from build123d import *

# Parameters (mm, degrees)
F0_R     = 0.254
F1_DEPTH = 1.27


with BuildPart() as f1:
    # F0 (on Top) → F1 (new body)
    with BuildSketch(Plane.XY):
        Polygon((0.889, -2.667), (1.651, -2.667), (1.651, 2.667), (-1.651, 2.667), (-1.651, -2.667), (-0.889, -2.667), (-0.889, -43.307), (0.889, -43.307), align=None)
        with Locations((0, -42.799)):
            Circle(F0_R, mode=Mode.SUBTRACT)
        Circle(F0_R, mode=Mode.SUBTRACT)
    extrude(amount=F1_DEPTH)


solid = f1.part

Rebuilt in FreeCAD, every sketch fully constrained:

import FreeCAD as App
import Part
import Sketcher
from FreeCAD import Vector
Q = App.Units.Quantity

doc = App.newDocument("Part")
params = doc.addObject("Spreadsheet::Sheet", "Params")
for row, (alias, value) in enumerate([
    ("sketch1_diameter", "0.02 in"),
    ("sketch1_height", "1.6 in"),
    ("sketch1_width", "0.03 in"),
    ("sketch1_width2", "0.13 in"),
    ("sketch1_height2", "0.21 in"),
    ("pad1_length", "0.05 in"),
], start=1):
    params.set(f"A{row}", alias)
    params.set(f"B{row}", "=" + value)
    params.setAlias(f"B{row}", alias)

body = doc.addObject("PartDesign::Body", "Body")

# Sketch on XY plane
sketch1 = body.newObject("Sketcher::SketchObject", "Sketch")
sketch1.AttachmentSupport = (doc.getObject("XY_Plane"), [""])
sketch1.MapMode = "FlatFace"
sketch1.addGeometry(Part.LineSegment(Vector(0.889, -2.667, 0), Vector(1.651, -2.667, 0)), False)
sketch1.addGeometry(Part.LineSegment(Vector(1.651, -2.667, 0), Vector(1.651, 2.667, 0)), False)
sketch1.addGeometry(Part.LineSegment(Vector(1.651, 2.667, 0), Vector(-1.651, 2.667, 0)), False)
sketch1.addGeometry(Part.LineSegment(Vector(-1.651, 2.667, 0), Vector(-1.651, -2.667, 0)), False)
sketch1.addGeometry(Part.LineSegment(Vector(-1.651, -2.667, 0), Vector(-0.889, -2.667, 0)), False)
sketch1.addGeometry(Part.LineSegment(Vector(-0.889, -2.667, 0), Vector(-0.889, -43.307, 0)), False)
sketch1.addGeometry(Part.LineSegment(Vector(-0.889, -43.307, 0), Vector(0.889, -43.307, 0)), False)
sketch1.addGeometry(Part.LineSegment(Vector(0.889, -43.307, 0), Vector(0.889, -2.667, 0)), False)
sketch1.addGeometry(Part.Circle(Vector(0, -42.799, 0), Vector(0, 0, 1), 0.254), False)
sketch1.addGeometry(Part.Circle(Vector(0, 0, 0), Vector(0, 0, 1), 0.254), False)
sketch1.addConstraint(Sketcher.Constraint("Coincident", 0, 2, 1, 1))
sketch1.addConstraint(Sketcher.Constraint("Coincident", 1, 2, 2, 1))
sketch1.addConstraint(Sketcher.Constraint("Coincident", 2, 2, 3, 1))
sketch1.addConstraint(Sketcher.Constraint("Coincident", 3, 2, 4, 1))
sketch1.addConstraint(Sketcher.Constraint("Coincident", 4, 2, 5, 1))
sketch1.addConstraint(Sketcher.Constraint("Coincident", 5, 2, 6, 1))
sketch1.addConstraint(Sketcher.Constraint("Coincident", 6, 2, 7, 1))
sketch1.addConstraint(Sketcher.Constraint("Coincident", 7, 2, 0, 1))
sketch1.addConstraint(Sketcher.Constraint("Horizontal", 0))
sketch1.addConstraint(Sketcher.Constraint("Vertical", 1))
sketch1.addConstraint(Sketcher.Constraint("Horizontal", 2))
sketch1.addConstraint(Sketcher.Constraint("Vertical", 3))
sketch1.addConstraint(Sketcher.Constraint("Horizontal", 4))
sketch1.addConstraint(Sketcher.Constraint("Vertical", 5))
sketch1.addConstraint(Sketcher.Constraint("Horizontal", 6))
sketch1.addConstraint(Sketcher.Constraint("Vertical", 7))
sketch1.addConstraint(Sketcher.Constraint("Coincident", 9, 3, -1, 1))
sketch1.addConstraint(Sketcher.Constraint("Equal", 8, 9))
sketch1.addConstraint(Sketcher.Constraint("Symmetric", 0, 2, 2, 2, -1, 1))
sketch1.addConstraint(Sketcher.Constraint("Symmetric", 4, 2, 7, 2, -2))
sketch1.addConstraint(Sketcher.Constraint("PointOnObject", 8, 3, -2))
sketch1.addConstraint(Sketcher.Constraint("Diameter", 8, Q("0.02 in")))
sketch1.addConstraint(Sketcher.Constraint("DistanceY", 5, 2, 5, 1, Q("1.6 in")))
sketch1.addConstraint(Sketcher.Constraint("DistanceX", 0, 1, 0, 2, Q("0.03 in")))
sketch1.addConstraint(Sketcher.Constraint("DistanceX", 2, 2, 2, 1, Q("0.13 in")))
sketch1.addConstraint(Sketcher.Constraint("DistanceY", 1, 1, 1, 2, Q("0.21 in")))
sketch1.addConstraint(Sketcher.Constraint("DistanceY", 8, 3, 0, 2, Q("1.58 in")))
sketch1.setExpression("Constraints[21]", "Params.sketch1_diameter")
sketch1.setExpression("Constraints[22]", "Params.sketch1_height")
sketch1.setExpression("Constraints[23]", "Params.sketch1_width")
sketch1.setExpression("Constraints[24]", "Params.sketch1_width2")
sketch1.setExpression("Constraints[25]", "Params.sketch1_height2")
pad1 = body.newObject("PartDesign::Pad", "Pad")
pad1.Profile = sketch1
pad1.setExpression("Length", "Params.pad1_length")

doc.recompute()
